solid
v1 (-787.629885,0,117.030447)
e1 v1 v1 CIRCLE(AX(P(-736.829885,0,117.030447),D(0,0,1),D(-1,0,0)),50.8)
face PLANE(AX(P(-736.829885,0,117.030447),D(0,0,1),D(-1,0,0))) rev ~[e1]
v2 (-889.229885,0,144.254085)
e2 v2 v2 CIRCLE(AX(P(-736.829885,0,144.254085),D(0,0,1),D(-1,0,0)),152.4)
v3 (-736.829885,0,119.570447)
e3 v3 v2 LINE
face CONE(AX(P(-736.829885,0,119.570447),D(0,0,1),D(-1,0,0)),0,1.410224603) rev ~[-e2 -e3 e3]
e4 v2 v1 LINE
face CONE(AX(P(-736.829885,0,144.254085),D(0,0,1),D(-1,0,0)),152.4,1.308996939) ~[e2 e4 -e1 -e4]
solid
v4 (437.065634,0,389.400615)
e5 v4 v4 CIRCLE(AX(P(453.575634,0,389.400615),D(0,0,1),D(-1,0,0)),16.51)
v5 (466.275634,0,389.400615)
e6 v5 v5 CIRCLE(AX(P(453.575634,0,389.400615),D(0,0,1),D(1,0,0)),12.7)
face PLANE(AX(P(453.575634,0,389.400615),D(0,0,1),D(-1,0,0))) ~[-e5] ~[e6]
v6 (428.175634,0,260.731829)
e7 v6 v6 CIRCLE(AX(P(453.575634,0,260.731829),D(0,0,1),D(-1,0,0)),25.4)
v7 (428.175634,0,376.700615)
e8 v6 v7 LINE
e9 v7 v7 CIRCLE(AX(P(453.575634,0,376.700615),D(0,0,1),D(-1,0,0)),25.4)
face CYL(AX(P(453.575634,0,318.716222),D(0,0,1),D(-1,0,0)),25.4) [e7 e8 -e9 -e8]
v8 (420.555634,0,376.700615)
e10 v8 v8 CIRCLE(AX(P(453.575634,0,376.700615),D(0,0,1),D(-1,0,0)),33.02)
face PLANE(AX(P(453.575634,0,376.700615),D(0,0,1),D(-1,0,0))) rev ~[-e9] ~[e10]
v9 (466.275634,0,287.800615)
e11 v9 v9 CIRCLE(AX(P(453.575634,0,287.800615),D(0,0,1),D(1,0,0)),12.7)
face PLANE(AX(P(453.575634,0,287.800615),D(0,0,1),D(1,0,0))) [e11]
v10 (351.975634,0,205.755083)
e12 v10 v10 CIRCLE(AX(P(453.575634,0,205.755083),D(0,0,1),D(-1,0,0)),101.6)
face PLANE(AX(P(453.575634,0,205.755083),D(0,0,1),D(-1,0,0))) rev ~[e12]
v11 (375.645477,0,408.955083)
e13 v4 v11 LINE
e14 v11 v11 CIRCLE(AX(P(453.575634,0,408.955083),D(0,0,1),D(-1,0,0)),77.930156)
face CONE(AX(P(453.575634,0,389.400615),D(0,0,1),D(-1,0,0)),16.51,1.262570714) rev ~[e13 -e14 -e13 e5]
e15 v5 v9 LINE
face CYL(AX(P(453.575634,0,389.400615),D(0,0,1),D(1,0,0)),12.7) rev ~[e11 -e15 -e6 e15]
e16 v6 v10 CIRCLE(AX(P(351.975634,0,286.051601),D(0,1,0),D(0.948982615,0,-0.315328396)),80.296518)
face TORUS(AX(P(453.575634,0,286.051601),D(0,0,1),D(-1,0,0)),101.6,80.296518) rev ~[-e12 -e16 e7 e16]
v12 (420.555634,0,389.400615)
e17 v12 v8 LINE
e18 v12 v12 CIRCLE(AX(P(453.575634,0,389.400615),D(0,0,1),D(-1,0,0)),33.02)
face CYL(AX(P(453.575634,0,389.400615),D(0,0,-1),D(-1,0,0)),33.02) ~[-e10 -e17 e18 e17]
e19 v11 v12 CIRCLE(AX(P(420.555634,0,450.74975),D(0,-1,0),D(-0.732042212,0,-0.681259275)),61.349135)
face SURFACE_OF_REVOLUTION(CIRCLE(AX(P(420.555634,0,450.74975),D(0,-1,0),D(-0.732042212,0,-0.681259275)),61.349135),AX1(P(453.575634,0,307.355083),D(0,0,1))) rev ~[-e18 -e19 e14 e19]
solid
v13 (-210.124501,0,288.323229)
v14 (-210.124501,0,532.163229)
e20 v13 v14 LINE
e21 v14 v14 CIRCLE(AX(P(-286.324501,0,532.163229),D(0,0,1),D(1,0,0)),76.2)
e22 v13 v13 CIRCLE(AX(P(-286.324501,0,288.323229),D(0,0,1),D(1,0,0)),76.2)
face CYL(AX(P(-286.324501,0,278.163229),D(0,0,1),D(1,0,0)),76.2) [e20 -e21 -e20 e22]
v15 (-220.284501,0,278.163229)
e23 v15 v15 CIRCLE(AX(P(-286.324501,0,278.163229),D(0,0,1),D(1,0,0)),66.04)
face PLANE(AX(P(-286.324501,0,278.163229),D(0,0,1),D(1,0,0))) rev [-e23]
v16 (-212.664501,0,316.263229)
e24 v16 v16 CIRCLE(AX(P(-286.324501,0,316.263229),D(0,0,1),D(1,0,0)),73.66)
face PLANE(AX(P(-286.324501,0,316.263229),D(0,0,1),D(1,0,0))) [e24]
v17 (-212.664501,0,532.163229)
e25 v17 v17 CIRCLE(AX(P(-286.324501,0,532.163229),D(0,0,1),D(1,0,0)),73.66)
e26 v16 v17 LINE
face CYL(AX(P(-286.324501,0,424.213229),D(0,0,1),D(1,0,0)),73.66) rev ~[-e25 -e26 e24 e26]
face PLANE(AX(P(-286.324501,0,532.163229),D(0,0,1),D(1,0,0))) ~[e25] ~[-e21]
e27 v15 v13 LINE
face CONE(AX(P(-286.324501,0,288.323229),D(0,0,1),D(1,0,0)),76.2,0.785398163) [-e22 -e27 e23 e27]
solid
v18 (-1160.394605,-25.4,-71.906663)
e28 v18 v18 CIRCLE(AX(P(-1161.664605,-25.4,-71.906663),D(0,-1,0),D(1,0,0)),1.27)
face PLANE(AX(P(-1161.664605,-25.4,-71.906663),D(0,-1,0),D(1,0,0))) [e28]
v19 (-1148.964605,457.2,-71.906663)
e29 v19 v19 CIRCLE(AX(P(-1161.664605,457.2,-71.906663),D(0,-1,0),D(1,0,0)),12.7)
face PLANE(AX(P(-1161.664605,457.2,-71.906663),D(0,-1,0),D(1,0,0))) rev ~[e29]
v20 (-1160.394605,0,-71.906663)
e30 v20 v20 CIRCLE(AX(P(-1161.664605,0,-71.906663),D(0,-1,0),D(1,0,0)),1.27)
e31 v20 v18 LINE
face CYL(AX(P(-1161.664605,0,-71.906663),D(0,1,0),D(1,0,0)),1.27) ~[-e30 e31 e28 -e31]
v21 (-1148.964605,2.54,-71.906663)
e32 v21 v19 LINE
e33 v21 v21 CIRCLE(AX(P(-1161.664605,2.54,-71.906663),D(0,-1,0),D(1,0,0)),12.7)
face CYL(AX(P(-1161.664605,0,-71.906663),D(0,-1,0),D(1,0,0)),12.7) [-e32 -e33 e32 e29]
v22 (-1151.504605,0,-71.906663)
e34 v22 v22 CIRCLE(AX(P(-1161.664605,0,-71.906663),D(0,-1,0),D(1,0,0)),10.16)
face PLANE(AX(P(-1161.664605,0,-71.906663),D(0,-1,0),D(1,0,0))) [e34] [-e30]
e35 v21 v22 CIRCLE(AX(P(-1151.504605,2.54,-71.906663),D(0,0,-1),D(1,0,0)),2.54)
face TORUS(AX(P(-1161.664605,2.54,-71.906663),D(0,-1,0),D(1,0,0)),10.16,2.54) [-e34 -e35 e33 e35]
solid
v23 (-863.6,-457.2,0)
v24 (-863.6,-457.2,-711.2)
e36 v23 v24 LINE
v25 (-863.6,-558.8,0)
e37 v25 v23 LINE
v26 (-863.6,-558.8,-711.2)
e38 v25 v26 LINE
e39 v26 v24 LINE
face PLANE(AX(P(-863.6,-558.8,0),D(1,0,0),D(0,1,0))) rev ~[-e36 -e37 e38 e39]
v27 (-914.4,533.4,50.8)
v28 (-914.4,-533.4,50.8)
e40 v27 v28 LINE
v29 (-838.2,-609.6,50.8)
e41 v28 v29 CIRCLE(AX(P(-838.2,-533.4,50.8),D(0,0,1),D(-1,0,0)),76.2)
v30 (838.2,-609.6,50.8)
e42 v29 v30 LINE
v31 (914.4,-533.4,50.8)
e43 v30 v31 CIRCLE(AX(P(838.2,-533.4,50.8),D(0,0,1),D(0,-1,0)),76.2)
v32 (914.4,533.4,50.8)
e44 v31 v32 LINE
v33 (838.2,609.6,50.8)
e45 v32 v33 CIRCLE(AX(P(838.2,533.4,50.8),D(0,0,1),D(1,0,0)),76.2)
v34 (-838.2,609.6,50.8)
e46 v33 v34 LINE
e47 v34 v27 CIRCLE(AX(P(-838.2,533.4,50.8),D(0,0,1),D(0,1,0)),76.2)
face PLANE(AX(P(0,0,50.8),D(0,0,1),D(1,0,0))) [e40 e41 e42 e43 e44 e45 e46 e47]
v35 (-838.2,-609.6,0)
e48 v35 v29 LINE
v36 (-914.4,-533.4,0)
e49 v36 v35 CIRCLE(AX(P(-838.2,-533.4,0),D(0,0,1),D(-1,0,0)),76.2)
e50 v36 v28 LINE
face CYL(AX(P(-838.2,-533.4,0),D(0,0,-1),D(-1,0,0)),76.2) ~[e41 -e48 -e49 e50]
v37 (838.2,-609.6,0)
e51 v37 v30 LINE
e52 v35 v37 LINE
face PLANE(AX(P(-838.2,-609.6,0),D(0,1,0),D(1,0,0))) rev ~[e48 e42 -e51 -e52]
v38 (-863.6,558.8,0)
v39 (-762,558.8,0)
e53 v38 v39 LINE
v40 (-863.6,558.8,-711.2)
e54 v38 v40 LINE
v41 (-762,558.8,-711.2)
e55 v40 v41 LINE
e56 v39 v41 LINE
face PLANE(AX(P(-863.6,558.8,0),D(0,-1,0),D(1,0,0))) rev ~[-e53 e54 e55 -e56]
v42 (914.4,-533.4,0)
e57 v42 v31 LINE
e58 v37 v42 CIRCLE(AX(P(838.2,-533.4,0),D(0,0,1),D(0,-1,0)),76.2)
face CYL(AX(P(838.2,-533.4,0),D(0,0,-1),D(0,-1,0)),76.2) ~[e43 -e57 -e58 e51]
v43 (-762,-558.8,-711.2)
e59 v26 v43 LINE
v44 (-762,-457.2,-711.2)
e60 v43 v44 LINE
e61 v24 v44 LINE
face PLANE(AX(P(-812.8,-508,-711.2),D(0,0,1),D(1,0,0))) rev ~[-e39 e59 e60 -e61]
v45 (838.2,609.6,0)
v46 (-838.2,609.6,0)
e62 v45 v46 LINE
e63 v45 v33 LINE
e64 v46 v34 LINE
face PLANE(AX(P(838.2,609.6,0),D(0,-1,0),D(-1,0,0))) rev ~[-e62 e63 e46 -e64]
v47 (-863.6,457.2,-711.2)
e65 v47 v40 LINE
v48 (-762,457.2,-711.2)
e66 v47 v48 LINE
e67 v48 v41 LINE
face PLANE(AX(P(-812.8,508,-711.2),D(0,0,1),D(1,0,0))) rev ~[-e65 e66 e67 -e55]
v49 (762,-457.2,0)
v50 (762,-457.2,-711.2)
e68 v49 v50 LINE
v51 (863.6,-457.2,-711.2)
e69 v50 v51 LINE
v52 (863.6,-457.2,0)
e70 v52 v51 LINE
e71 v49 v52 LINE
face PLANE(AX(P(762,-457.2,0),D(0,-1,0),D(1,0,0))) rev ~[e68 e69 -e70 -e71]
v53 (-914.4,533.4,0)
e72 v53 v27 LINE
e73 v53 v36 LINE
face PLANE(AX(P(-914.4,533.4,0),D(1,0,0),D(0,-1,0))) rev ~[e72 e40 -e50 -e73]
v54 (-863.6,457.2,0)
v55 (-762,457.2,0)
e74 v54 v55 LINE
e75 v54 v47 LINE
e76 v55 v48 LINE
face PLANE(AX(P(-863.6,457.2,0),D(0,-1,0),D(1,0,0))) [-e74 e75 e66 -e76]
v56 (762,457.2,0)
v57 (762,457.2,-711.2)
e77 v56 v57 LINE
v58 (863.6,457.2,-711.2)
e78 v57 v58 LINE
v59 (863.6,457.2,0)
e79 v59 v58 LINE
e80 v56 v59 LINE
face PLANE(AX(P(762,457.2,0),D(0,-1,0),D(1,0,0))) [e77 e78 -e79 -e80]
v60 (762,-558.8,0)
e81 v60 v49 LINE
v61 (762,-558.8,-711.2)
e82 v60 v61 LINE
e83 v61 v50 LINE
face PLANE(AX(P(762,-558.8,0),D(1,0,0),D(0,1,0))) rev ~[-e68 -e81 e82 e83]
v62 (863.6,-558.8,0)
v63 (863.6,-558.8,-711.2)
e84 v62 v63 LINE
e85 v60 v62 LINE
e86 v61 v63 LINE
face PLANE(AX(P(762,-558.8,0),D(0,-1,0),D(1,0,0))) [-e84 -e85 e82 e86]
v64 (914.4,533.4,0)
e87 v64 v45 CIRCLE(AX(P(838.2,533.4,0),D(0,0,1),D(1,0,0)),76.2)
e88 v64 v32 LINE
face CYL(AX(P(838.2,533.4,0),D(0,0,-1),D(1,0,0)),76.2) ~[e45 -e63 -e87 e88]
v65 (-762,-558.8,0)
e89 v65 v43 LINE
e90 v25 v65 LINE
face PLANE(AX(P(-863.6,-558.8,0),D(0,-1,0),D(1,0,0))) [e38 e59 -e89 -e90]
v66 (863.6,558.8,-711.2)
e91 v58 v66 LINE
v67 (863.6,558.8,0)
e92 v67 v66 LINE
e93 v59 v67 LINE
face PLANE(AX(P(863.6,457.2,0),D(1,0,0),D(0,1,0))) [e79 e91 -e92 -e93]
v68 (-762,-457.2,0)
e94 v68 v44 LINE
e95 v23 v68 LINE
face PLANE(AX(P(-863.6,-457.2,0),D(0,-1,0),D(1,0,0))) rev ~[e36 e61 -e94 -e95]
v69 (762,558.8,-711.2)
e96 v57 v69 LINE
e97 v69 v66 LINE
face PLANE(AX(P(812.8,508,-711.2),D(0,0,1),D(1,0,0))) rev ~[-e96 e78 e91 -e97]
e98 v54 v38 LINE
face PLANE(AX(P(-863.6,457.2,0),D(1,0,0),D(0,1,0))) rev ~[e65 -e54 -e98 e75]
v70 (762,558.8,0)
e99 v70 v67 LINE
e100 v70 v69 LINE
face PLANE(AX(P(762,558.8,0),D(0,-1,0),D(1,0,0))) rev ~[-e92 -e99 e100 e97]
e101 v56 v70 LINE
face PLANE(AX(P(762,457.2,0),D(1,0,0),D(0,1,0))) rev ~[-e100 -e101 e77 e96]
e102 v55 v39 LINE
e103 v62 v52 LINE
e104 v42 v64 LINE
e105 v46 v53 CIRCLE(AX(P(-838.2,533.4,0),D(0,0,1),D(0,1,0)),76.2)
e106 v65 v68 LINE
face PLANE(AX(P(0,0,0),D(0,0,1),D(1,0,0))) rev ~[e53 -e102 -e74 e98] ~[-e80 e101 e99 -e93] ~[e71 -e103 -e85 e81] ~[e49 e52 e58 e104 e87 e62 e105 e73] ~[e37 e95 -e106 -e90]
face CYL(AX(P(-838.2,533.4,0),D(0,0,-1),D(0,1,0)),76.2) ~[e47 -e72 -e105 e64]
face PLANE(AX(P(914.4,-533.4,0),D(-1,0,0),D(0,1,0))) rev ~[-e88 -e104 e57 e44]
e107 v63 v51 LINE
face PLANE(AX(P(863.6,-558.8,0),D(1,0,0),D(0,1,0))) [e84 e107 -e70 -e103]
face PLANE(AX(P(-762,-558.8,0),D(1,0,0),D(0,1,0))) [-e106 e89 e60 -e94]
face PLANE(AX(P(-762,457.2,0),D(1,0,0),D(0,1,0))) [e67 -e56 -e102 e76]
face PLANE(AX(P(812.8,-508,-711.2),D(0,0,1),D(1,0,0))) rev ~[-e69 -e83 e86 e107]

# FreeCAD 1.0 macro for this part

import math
import FreeCAD as App
import Part
import Sketcher

V = App.Vector
Q = App.Units.Quantity


def edges_at(feature, points):
    """Names of the edges that pass closest to the given points."""
    edges = feature.Shape.Edges
    near = lambda p: min(range(len(edges)), key=lambda i: edges[i].distToShape(Part.Vertex(*p))[0])
    return sorted({f"Edge{near(p) + 1}" for p in points})


def add_polygon(sketch, points):
    """Adds a closed chain of lines whose ends are joined by coincident constraints."""
    first, n = sketch.GeometryCount, len(points)
    for a, b in zip(points, points[1:] + points[:1]):
        sketch.addGeometry(Part.LineSegment(App.Vector(*a, 0), App.Vector(*b, 0)), False)
    for i in range(n):
        sketch.addConstraint(Sketcher.Constraint("Coincident", first + i, 2, first + (i + 1) % n, 1))

doc = App.newDocument("Part")
body = doc.addObject("PartDesign::Body", "Body")

sketch1 = body.newObject("Sketcher::SketchObject", "Sketch")
sketch1.AttachmentSupport = (doc.getObject("XY_Plane"), [""])
sketch1.MapMode = "FlatFace"
sketch1.addGeometry([
    Part.LineSegment(V(838.2, 609.6, 0), V(-838.2, 609.6, 0)),
    Part.ArcOfCircle(Part.Circle(V(-838.2, 533.4, 0), V(0, 0, 1), 76.2), math.radians(90), math.radians(180)),
    Part.LineSegment(V(-914.4, 533.4, 0), V(-914.4, -533.4, 0)),
    Part.ArcOfCircle(Part.Circle(V(-838.2, -533.4, 0), V(0, 0, 1), 76.2), math.radians(180), math.radians(270)),
    Part.LineSegment(V(-838.2, -609.6, 0), V(838.2, -609.6, 0)),
    Part.ArcOfCircle(Part.Circle(V(838.2, -533.4, 0), V(0, 0, 1), 76.2), math.radians(-90), math.radians(0)),
    Part.LineSegment(V(914.4, -533.4, 0), V(914.4, 533.4, 0)),
    Part.ArcOfCircle(Part.Circle(V(838.2, 533.4, 0), V(0, 0, 1), 76.2), math.radians(0), math.radians(90)),
], False)
sketch1.addConstraint([
    Sketcher.Constraint("Tangent", 0, 2, 1, 1),
    Sketcher.Constraint("Tangent", 1, 2, 2, 1),
    Sketcher.Constraint("Tangent", 2, 2, 3, 1),
    Sketcher.Constraint("Tangent", 3, 2, 4, 1),
    Sketcher.Constraint("Tangent", 4, 2, 5, 1),
    Sketcher.Constraint("Tangent", 5, 2, 6, 1),
    Sketcher.Constraint("Tangent", 6, 2, 7, 1),
    Sketcher.Constraint("Tangent", 7, 2, 0, 1),
    Sketcher.Constraint("Horizontal", 0),
    Sketcher.Constraint("Vertical", 2),
    Sketcher.Constraint("Horizontal", 4),
    Sketcher.Constraint("Vertical", 6),
    Sketcher.Constraint("Equal", 1, 3),
    Sketcher.Constraint("Equal", 3, 5),
    Sketcher.Constraint("Equal", 5, 7),
    Sketcher.Constraint("Symmetric", 1, 3, 5, 3, -1, 1),
    Sketcher.Constraint("Radius", 1, Q("3 in")),
    Sketcher.Constraint("DistanceX", 0, 2, 0, 1, Q("66 in")),
    Sketcher.Constraint("DistanceY", 2, 2, 2, 1, Q("42 in")),
])
pad1 = body.newObject("PartDesign::Pad", "Pad")
pad1.Profile = sketch1
pad1.Length = Q("2 in")

sketch2 = body.newObject("Sketcher::SketchObject", "Sketch001")
sketch2.AttachmentSupport = (doc.getObject("XY_Plane"), [""])
sketch2.MapMode = "FlatFace"
add_polygon(sketch2, [(-863.6, -457.2), (-863.6, -558.8), (-762, -558.8), (-762, -457.2)])
add_polygon(sketch2, [(-863.6, 558.8), (-863.6, 457.2), (-762, 457.2), (-762, 558.8)])
add_polygon(sketch2, [(762, 558.8), (762, 457.2), (863.6, 457.2), (863.6, 558.8)])
add_polygon(sketch2, [(762, -457.2), (762, -558.8), (863.6, -558.8), (863.6, -457.2)])
sketch2.addConstraint([
    Sketcher.Constraint("Vertical", 0),
    Sketcher.Constraint("Horizontal", 1),
    Sketcher.Constraint("Vertical", 2),
    Sketcher.Constraint("Horizontal", 3),
    Sketcher.Constraint("Vertical", 4),
    Sketcher.Constraint("Horizontal", 5),
    Sketcher.Constraint("Vertical", 6),
    Sketcher.Constraint("Horizontal", 7),
    Sketcher.Constraint("Vertical", 8),
    Sketcher.Constraint("Horizontal", 9),
    Sketcher.Constraint("Vertical", 10),
    Sketcher.Constraint("Horizontal", 11),
    Sketcher.Constraint("Vertical", 12),
    Sketcher.Constraint("Horizontal", 13),
    Sketcher.Constraint("Vertical", 14),
    Sketcher.Constraint("Horizontal", 15),
    Sketcher.Constraint("Symmetric", 2, 2, 8, 2, -1, 1),
    Sketcher.Constraint("Symmetric", 0, 2, 10, 2, -1, 1),
    Sketcher.Constraint("Symmetric", 6, 2, 12, 2, -1, 1),
    Sketcher.Constraint("Symmetric", 4, 2, 14, 2, -1, 1),
    Sketcher.Constraint("Symmetric", 5, 2, 8, 2, -2),
    Sketcher.Constraint("Symmetric", 7, 2, 10, 2, -2),
    Sketcher.Constraint("Equal", 15, 0),
    Sketcher.Constraint("DistanceX", 1, 1, 1, 2, Q("4 in")),
    Sketcher.Constraint("DistanceX", 0, 2, -1, 1, Q("34 in")),
    Sketcher.Constraint("DistanceY", 0, 2, -1, 1, Q("22 in")),
])
pad2 = body.newObject("PartDesign::Pad", "Pad001")
pad2.Profile = sketch2
pad2.Length = Q("28 in")
pad2.Reversed = True
body2 = doc.addObject("PartDesign::Body", "Body001")

sketch3 = body2.newObject("Sketcher::SketchObject", "Sketch002")
sketch3.AttachmentSupport = (doc.getObject("XZ_Plane001"), [""])
sketch3.MapMode = "FlatFace"
add_polygon(sketch3, [(-286.324501, 316.263229), (-286.324501, 278.163229), (-210.124501, 278.163229), (-210.124501, 532.163229), (-212.664501, 532.163229), (-212.664501, 316.263229)])
sketch3.addGeometry(Part.LineSegment(V(-286.324501, 278.163229, 0), V(-286.324501, 532.163229, 0)), True)
sketch3.addConstraint([
    Sketcher.Constraint("Vertical", 0),
    Sketcher.Constraint("Horizontal", 1),
    Sketcher.Constraint("Vertical", 2),
    Sketcher.Constraint("Horizontal", 3),
    Sketcher.Constraint("Vertical", 4),
    Sketcher.Constraint("Horizontal", 5),
    Sketcher.Constraint("Vertical", 6),
    Sketcher.Constraint("Coincident", 6, 1, 0, 2),
    Sketcher.Constraint("Horizontal", 3, 2, 6, 2),
    Sketcher.Constraint("DistanceX", 1, 1, 1, 2, Q("3 in")),
    Sketcher.Constraint("DistanceY", 2, 1, 2, 2, Q("10 in")),
    Sketcher.Constraint("DistanceX", 3, 2, 3, 1, Q("0.1 in")),
    Sketcher.Constraint("DistanceY", 0, 2, 0, 1, Q("1.5 in")),
    Sketcher.Constraint("DistanceX", 0, 2, -1, 1, 286.324501),
    Sketcher.Constraint("DistanceY", -1, 1, 0, 2, 278.163229),
])
revolution = body2.newObject("PartDesign::Revolution", "Revolution")
revolution.Profile = sketch3
revolution.ReferenceAxis = (sketch3, ["Axis0"])
revolution.Angle = 360
doc.recompute()

chamfer = body2.newObject("PartDesign::Chamfer", "Chamfer")
chamfer.Base = (revolution, edges_at(revolution, [(-362.525, 0, 278.163)]))
chamfer.Size = Q("0.4 in")
body3 = doc.addObject("PartDesign::Body", "Body002")

sketch4 = body3.newObject("Sketcher::SketchObject", "Sketch003")
sketch4.AttachmentSupport = (doc.getObject("XZ_Plane002"), [""])
sketch4.MapMode = "FlatFace"
add_polygon(sketch4, [(-787.629885, 117.030447), (-736.829885, 117.030447), (-736.829885, 119.570447), (-889.229885, 144.254085)])
sketch4.addGeometry(Part.LineSegment(V(-736.829885, 117.030447, 0), V(-736.829885, 144.254085, 0)), True)
sketch4.addConstraint([
    Sketcher.Constraint("Horizontal", 0),
    Sketcher.Constraint("Vertical", 1),
    Sketcher.Constraint("Vertical", 4),
    Sketcher.Constraint("Coincident", 4, 1, 0, 2),
    Sketcher.Constraint("Horizontal", 2, 2, 4, 2),
    Sketcher.Constraint("DistanceX", 0, 1, 0, 2, Q("2 in")),
    Sketcher.Constraint("DistanceY", 1, 1, 1, 2, Q("0.1 in")),
    Sketcher.Constraint("Angle", 3, Q("-15 deg")),
    Sketcher.Constraint("DistanceX", 2, 2, 1, 2, Q("6 in")),
    Sketcher.Constraint("DistanceX", 0, 2, -1, 1, 736.829885),
    Sketcher.Constraint("DistanceY", -1, 1, 0, 2, 117.030447),
])
revolution2 = body3.newObject("PartDesign::Revolution", "Revolution001")
revolution2.Profile = sketch4
revolution2.ReferenceAxis = (sketch4, ["Axis0"])
revolution2.Angle = 360
body4 = doc.addObject("PartDesign::Body", "Body003")

sketch5 = body4.newObject("Sketcher::SketchObject", "Sketch004")
sketch5.AttachmentSupport = (doc.getObject("XZ_Plane003"), [""])
sketch5.MapMode = "FlatFace"
sketch5.addGeometry(Part.Circle(V(-1161.664605, -71.906663, 0), V(0, 0, 1), 12.7), False)
sketch5.addConstraint([
    Sketcher.Constraint("Diameter", 0, Q("1 in")),
    Sketcher.Constraint("DistanceX", 0, 3, -1, 1, 1161.664605),
    Sketcher.Constraint("DistanceY", 0, 3, -1, 1, 71.906663),
])
pad3 = body4.newObject("PartDesign::Pad", "Pad002")
pad3.Profile = sketch5
pad3.Length = Q("18 in")
pad3.Reversed = True

sketch6 = body4.newObject("Sketcher::SketchObject", "Sketch005")
sketch6.AttachmentSupport = (doc.getObject("XZ_Plane003"), [""])
sketch6.MapMode = "FlatFace"
sketch6.addGeometry(Part.Circle(V(-1161.664605, -71.906663, 0), V(0, 0, 1), 1.27), False)
sketch6.addConstraint([
    Sketcher.Constraint("Diameter", 0, Q("0.1 in")),
    Sketcher.Constraint("DistanceX", 0, 3, -1, 1, 1161.664605),
    Sketcher.Constraint("DistanceY", 0, 3, -1, 1, 71.906663),
])
pad4 = body4.newObject("PartDesign::Pad", "Pad003")
pad4.Profile = sketch6
pad4.Length = Q("1 in")
doc.recompute()

fillet = body4.newObject("PartDesign::Fillet", "Fillet")
fillet.Base = (pad4, edges_at(pad4, [(-1174.365, 0, -71.907)]))
fillet.Radius = Q("0.1 in")
body5 = doc.addObject("PartDesign::Body", "Body004")

sketch7 = body5.newObject("Sketcher::SketchObject", "Sketch006")
sketch7.AttachmentSupport = (doc.getObject("XZ_Plane004"), [""])
sketch7.MapMode = "FlatFace"
sketch7.addGeometry([
    Part.LineSegment(V(453.575634, 389.400615, 0), V(437.065634, 389.400615, 0)),
    Part.LineSegment(V(437.065634, 389.400615, 0), V(375.645477, 408.955083, 0)),
    Part.ArcOfCircle(Part.Circle(V(420.555634, 450.74975, 0), V(0, 0, 1), 61.349135), math.radians(-137.057874), math.radians(-90)),
    Part.LineSegment(V(420.555634, 389.400615, 0), V(420.555634, 376.700615, 0)),
    Part.LineSegment(V(420.555634, 376.700615, 0), V(428.175634, 376.700615, 0)),
    Part.LineSegment(V(428.175634, 376.700615, 0), V(428.175634, 260.731829, 0)),
    Part.ArcOfCircle(Part.Circle(V(351.975634, 286.051601, 0), V(0, 0, 1), 80.296518), math.radians(-90), math.radians(-18.38064)),
    Part.LineSegment(V(351.975634, 205.755083, 0), V(453.575634, 205.755083, 0)),
    Part.LineSegment(V(453.575634, 205.755083, 0), V(453.575634, 389.400615, 0)),
], False)
sketch7.addGeometry(Part.LineSegment(V(453.575634, 205.755083, 0), V(453.575634, 450.74975, 0)), True)
sketch7.addConstraint([
    Sketcher.Constraint("Coincident", 0, 2, 1, 1),
    Sketcher.Constraint("Coincident", 1, 2, 2, 1),
    Sketcher.Constraint("Coincident", 2, 2, 3, 1),
    Sketcher.Constraint("Coincident", 3, 2, 4, 1),
    Sketcher.Constraint("Coincident", 4, 2, 5, 1),
    Sketcher.Constraint("Coincident", 5, 2, 6, 2),
    Sketcher.Constraint("Tangent", 6, 1, 7, 1),
    Sketcher.Constraint("Coincident", 7, 2, 8, 1),
    Sketcher.Constraint("Coincident", 8, 2, 0, 1),
    Sketcher.Constraint("Horizontal", 0),
    Sketcher.Constraint("Vertical", 3),
    Sketcher.Constraint("Horizontal", 4),
    Sketcher.Constraint("Vertical", 5),
    Sketcher.Constraint("Horizontal", 7),
    Sketcher.Constraint("Vertical", 8),
    Sketcher.Constraint("Vertical", 9),
    Sketcher.Constraint("Coincident", 9, 1, 7, 2),
    Sketcher.Constraint("Horizontal", 0, 2, 2, 2),
    Sketcher.Constraint("Horizontal", 2, 3, 9, 2),
    Sketcher.Constraint("DistanceX", 7, 1, 7, 2, Q("4 in")),
    Sketcher.Constraint("DistanceX", 4, 1, 4, 2, Q("0.3 in")),
    Sketcher.Constraint("DistanceY", 3, 2, 3, 1, Q("0.5 in")),
    Sketcher.Constraint("DistanceX", 6, 3, 5, 2, Q("3 in")),
    Sketcher.Constraint("DistanceX", 0, 2, 0, 1, Q("0.65 in")),
    Sketcher.Constraint("DistanceX", 6, 3, 2, 3, Q("2.7 in")),
    Sketcher.Constraint("Radius", 6, 80.296518),
    Sketcher.Constraint("Radius", 2, 61.349135),
    Sketcher.Constraint("DistanceY", -1, 1, 6, 3, 286.051601),
    Sketcher.Constraint("DistanceY", 5, 2, 5, 1, 115.968786),
    Sketcher.Constraint("DistanceY", 6, 3, 1, 2, 122.903482),
    Sketcher.Constraint("DistanceX", -1, 1, 2, 3, 420.555634),
])
revolution3 = body5.newObject("PartDesign::Revolution", "Revolution002")
revolution3.Profile = sketch7
revolution3.ReferenceAxis = (sketch7, ["Axis0"])
revolution3.Angle = 360

sketch8 = body5.newObject("Sketcher::SketchObject", "Sketch007")
sketch8.AttachmentSupport = (doc.getObject("XY_Plane004"), [""])
sketch8.MapMode = "FlatFace"
sketch8.AttachmentOffset = App.Placement(V(0, 0, 389.400615), App.Rotation())
sketch8.addGeometry(Part.Circle(V(453.575634, 0, 0), V(0, 0, 1), 12.7), False)
sketch8.addConstraint([
    Sketcher.Constraint("PointOnObject", 0, 3, -1),
    Sketcher.Constraint("Diameter", 0, Q("1 in")),
    Sketcher.Constraint("DistanceX", -1, 1, 0, 3, 453.575634),
])
pocket1 = body5.newObject("PartDesign::Pocket", "Pocket")
pocket1.Profile = sketch8
pocket1.Length = Q("4 in")

doc.recompute()
